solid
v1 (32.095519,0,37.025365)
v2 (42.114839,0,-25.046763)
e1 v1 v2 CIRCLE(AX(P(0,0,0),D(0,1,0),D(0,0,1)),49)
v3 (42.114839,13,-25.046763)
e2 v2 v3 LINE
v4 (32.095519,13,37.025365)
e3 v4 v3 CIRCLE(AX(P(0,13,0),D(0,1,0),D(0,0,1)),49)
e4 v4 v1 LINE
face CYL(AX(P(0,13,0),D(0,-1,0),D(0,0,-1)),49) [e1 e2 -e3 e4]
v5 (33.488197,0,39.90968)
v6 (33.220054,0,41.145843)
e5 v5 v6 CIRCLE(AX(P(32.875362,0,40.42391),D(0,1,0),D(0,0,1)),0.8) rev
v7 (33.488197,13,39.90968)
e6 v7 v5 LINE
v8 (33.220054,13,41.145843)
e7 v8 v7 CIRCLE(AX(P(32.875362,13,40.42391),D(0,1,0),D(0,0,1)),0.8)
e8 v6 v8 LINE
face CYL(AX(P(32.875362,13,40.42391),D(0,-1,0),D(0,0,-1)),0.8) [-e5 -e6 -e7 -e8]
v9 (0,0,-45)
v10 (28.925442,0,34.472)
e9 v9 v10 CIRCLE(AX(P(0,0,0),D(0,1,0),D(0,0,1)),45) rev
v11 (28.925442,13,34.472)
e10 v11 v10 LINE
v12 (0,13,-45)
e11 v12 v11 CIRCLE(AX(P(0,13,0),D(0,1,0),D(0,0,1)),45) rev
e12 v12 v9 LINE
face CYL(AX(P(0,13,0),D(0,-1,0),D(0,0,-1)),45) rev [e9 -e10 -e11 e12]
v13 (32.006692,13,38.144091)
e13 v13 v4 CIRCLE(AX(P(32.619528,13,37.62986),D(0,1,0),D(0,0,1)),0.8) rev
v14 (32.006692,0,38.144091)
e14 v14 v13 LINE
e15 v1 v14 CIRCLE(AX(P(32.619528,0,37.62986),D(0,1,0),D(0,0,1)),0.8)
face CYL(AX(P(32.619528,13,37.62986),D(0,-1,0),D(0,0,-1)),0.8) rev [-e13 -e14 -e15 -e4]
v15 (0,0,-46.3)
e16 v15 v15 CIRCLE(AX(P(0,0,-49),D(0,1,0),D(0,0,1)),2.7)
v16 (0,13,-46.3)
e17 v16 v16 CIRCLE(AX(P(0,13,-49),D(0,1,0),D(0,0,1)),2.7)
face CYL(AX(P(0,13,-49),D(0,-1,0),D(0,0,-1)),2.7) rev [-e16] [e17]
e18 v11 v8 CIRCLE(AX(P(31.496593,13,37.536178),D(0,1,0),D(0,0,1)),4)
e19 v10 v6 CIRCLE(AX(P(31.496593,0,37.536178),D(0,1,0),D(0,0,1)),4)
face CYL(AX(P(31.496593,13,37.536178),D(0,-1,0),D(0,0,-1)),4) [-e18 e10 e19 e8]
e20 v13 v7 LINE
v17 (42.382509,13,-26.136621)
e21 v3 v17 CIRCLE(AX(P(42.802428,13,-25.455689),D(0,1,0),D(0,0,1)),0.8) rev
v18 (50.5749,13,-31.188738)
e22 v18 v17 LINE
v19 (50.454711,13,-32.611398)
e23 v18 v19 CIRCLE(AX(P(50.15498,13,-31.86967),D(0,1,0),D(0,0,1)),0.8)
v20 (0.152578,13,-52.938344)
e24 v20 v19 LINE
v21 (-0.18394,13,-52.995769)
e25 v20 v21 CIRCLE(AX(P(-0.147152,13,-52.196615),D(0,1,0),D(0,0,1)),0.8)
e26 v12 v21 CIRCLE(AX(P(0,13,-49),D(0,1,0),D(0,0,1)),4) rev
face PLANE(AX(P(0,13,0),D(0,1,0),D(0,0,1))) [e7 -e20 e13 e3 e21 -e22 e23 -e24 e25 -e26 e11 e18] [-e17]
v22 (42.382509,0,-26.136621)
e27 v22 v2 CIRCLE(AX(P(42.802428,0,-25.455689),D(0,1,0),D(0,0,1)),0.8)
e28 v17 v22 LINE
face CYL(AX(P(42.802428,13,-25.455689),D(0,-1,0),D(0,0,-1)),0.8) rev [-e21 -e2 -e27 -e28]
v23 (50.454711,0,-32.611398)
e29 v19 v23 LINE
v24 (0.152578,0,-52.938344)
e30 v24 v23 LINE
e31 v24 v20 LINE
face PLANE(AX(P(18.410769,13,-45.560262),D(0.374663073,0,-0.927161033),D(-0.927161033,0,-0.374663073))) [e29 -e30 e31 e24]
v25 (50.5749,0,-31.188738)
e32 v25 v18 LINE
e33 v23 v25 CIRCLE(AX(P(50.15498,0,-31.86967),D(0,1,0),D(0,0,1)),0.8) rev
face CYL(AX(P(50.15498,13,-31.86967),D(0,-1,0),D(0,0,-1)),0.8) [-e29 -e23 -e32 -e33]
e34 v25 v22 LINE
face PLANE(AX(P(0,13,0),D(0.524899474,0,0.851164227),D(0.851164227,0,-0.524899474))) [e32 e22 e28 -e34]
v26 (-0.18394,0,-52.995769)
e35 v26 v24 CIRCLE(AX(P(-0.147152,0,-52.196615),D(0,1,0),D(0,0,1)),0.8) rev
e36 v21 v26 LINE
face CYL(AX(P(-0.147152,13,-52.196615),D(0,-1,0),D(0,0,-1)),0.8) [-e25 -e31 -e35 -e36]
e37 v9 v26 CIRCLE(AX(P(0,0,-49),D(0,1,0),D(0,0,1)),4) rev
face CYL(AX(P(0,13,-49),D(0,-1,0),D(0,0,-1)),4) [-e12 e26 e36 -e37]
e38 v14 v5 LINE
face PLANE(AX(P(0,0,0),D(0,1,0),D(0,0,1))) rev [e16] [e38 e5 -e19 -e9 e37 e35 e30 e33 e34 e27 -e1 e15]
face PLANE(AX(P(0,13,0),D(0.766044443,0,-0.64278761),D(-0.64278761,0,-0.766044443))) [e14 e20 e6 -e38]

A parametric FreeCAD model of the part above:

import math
import FreeCAD as App
import Part
import Sketcher
Q = App.Units.Quantity


def edges_at(feature, points):
    """Names of the edges that pass closest to the given points."""
    edges = feature.Shape.Edges
    near = lambda p: min(range(len(edges)), key=lambda i: edges[i].distToShape(Part.Vertex(*p))[0])
    return sorted({f"Edge{near(p) + 1}" for p in points})

doc = App.newDocument("Part")
params = doc.addObject("Spreadsheet::Sheet", "Params")
for row, (alias, value) in enumerate([
    ("sketch1_radius", "4 mm"),
    ("sketch1_radius2", "45 mm"),
    ("sketch1_diameter", "5.4 mm"),
    ("sketch1_length", "56 mm"),
    ("sketch1_length2", "12 mm"),
    ("pad1_length", "13 mm"),
    ("fillet_radius", "0.8 mm"),
], start=1):
    params.set(f"A{row}", alias)
    params.set(f"B{row}", "=" + value)
    params.setAlias(f"B{row}", alias)

body = doc.addObject("PartDesign::Body", "Body")

# Sketch on XZ plane
sketch1 = body.newObject("Sketcher::SketchObject", "Sketch")
sketch1.AttachmentSupport = (doc.getObject("XZ_Plane"), [""])
sketch1.MapMode = "FlatFace"
sketch1.addGeometry([
    Part.LineSegment(App.Vector(51.9, -32, 0), App.Vector(0, -53, 0)),  # 0
    Part.ArcOfCircle(Part.Circle(App.Vector(0, -49, 0), App.Vector(0, 0, 1), 4), math.radians(90), math.radians(270)),  # 1
    Part.ArcOfCircle(Part.Circle(App.Vector(0, 0, 0), App.Vector(0, 0, 1), 45), math.radians(-90), math.radians(50)),  # 2
    Part.ArcOfCircle(Part.Circle(App.Vector(31.5, 37.5, 0), App.Vector(0, 0, 1), 4), math.radians(50), math.radians(230)),  # 3
    Part.LineSegment(App.Vector(34.1, 40.6, 0), App.Vector(31.5, 37.5, 0)),  # 4
    Part.ArcOfCircle(Part.Circle(App.Vector(0, 0, 0), App.Vector(0, 0, 1), 49), math.radians(-32), math.radians(50)),  # 5
    Part.LineSegment(App.Vector(41.7, -25.7, 0), App.Vector(51.9, -32, 0)),  # 6
    Part.Circle(App.Vector(0, -49, 0), App.Vector(0, 0, 1), 2.7),  # 7
], False)
sketch1.addConstraint([
    Sketcher.Constraint("Coincident", 0, 2, 1, 2),
    Sketcher.Constraint("Tangent", 1, 1, 2, 1),
    Sketcher.Constraint("Tangent", 2, 2, 3, 2),
    Sketcher.Constraint("Coincident", 3, 1, 4, 1),
    Sketcher.Constraint("Coincident", 4, 2, 5, 2),
    Sketcher.Constraint("Coincident", 5, 1, 6, 1),
    Sketcher.Constraint("Coincident", 6, 2, 0, 1),
    Sketcher.Constraint("Coincident", 2, 3, -1, 1),
    Sketcher.Constraint("Coincident", 5, 3, -1, 1),
    Sketcher.Constraint("Coincident", 7, 3, 1, 3),
    Sketcher.Constraint("Coincident", 4, 2, 3, 3),
    Sketcher.Constraint("Equal", 1, 3),
    Sketcher.Constraint("PointOnObject", 1, 3, -2),
    Sketcher.Constraint("PointOnObject", 0, 2, -2),
    Sketcher.Constraint("Radius", 1, 4.0),
    Sketcher.Constraint("Radius", 2, 45.0),
    Sketcher.Constraint("Diameter", 7, 5.4),
    Sketcher.Constraint("Angle", 4, Q("-130 deg")),
    Sketcher.Constraint("Distance", 0, 56.0),
    Sketcher.Constraint("Distance", 6, 12.0),
    Sketcher.Constraint("DistanceY", -1, 1, 2, 2, 34.472),
    Sketcher.Constraint("DistanceX", 5, 1, 6, 2, 10.213971),
])
sketch1.setExpression("Constraints[14]", "Params.sketch1_radius")
sketch1.setExpression("Constraints[15]", "Params.sketch1_radius2")
sketch1.setExpression("Constraints[16]", "Params.sketch1_diameter")
sketch1.setExpression("Constraints[18]", "Params.sketch1_length")
sketch1.setExpression("Constraints[19]", "Params.sketch1_length2")
pad1 = body.newObject("PartDesign::Pad", "Pad")
pad1.Profile = sketch1
pad1.setExpression("Length", "Params.pad1_length")
pad1.Reversed = True
doc.recompute()

fillet = body.newObject("PartDesign::Fillet", "Fillet")
fillet.Base = (pad1, edges_at(pad1, [
    (51.921, 6.5, -32.019),
    (41.707, 6.5, -25.72),
    (31.497, 6.5, 37.536),
    (34.068, 6.5, 40.6),
    (0, 6.5, -53),
]))
fillet.setExpression("Radius", "Params.fillet_radius")

doc.recompute()
